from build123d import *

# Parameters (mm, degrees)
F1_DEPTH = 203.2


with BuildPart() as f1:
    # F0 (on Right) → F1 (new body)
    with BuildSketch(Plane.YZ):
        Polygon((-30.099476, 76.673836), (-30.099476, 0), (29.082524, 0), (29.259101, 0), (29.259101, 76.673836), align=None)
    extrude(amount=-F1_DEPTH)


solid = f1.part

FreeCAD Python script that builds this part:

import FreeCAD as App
import Part
import Sketcher
Q = App.Units.Quantity


def add_polygon(sketch, points):
    """Adds a closed chain of lines whose ends are joined by coincident constraints."""
    first, n = sketch.GeometryCount, len(points)
    for a, b in zip(points, points[1:] + points[:1]):
        sketch.addGeometry(Part.LineSegment(App.Vector(*a, 0), App.Vector(*b, 0)), False)
    for i in range(n):
        sketch.addConstraint(Sketcher.Constraint("Coincident", first + i, 2, first + (i + 1) % n, 1))

doc = App.newDocument("Part")
body = doc.addObject("PartDesign::Body", "Body")

sketch1 = body.newObject("Sketcher::SketchObject", "Sketch")
sketch1.AttachmentSupport = (doc.getObject("YZ_Plane"), [""])
sketch1.MapMode = "FlatFace"
add_polygon(sketch1, [(-30, 77), (-30, 0), (29, 0), (29, 77)])
sketch1.addConstraint([
    Sketcher.Constraint("Vertical", 0),
    Sketcher.Constraint("Horizontal", 1),
    Sketcher.Constraint("Vertical", 2),
    Sketcher.Constraint("Horizontal", 3),
    Sketcher.Constraint("PointOnObject", 0, 2, -1),
    Sketcher.Constraint("DistanceX", -1, 1, 1, 2, 29.259101),
    Sketcher.Constraint("DistanceX", 1, 1, 1, 2, 59.358577),
    Sketcher.Constraint("DistanceY", 0, 2, 0, 1, 76.673836),
])
pad1 = body.newObject("PartDesign::Pad", "Pad")
pad1.Profile = sketch1
pad1.Length = Q("8 in")
pad1.Reversed = True

doc.recompute()
